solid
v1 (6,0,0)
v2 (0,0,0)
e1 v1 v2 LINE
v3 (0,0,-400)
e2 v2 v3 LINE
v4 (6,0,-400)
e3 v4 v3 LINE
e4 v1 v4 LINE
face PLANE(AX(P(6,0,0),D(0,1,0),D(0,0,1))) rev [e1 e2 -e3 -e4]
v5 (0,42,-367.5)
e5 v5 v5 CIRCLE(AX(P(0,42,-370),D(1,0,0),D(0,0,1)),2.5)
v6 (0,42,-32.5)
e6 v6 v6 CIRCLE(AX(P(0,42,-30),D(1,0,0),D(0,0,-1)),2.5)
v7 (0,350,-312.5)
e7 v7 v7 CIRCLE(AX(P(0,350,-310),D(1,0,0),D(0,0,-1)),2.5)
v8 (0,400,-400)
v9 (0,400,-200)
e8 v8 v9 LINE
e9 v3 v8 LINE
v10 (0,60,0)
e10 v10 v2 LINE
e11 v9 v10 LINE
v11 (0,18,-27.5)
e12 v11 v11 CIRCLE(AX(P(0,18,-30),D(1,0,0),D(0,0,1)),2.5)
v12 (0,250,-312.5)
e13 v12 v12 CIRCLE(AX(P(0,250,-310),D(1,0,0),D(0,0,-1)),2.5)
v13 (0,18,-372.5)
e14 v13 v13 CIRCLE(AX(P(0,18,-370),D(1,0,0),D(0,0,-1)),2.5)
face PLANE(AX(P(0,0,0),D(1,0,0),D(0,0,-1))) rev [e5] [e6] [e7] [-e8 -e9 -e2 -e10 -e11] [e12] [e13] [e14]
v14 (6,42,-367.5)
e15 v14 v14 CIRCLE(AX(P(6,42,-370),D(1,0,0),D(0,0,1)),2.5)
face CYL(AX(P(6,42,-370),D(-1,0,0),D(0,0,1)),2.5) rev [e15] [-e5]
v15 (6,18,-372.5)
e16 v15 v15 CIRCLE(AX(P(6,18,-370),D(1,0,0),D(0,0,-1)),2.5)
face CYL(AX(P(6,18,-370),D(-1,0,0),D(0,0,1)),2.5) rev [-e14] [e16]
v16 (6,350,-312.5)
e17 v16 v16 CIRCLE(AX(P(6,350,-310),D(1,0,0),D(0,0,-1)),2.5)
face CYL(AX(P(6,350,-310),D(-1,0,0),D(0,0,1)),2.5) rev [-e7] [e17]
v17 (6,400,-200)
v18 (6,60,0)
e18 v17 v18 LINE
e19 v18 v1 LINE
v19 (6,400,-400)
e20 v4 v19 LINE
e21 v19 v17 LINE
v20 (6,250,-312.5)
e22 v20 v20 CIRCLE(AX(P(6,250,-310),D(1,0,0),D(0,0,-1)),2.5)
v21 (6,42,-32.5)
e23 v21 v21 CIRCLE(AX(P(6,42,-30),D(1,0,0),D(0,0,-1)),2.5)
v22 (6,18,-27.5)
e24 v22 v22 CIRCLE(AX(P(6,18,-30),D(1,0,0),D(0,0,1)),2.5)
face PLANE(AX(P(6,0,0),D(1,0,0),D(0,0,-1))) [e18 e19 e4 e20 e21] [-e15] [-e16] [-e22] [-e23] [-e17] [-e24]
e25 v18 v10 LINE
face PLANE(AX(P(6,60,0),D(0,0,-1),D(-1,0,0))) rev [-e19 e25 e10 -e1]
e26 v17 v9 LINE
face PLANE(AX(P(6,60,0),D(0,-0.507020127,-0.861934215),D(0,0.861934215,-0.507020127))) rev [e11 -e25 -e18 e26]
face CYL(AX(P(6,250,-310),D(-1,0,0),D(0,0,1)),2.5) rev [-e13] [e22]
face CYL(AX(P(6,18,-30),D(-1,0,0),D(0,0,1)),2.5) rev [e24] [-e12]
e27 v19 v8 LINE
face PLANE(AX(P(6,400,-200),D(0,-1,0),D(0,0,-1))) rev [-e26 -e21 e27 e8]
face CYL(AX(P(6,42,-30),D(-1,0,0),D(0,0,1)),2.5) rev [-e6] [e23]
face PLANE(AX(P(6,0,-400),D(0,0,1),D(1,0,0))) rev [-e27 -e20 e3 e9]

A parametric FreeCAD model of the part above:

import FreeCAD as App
import Part
import Sketcher

V = App.Vector


def add_polygon(sketch, points):
    """Adds a closed chain of lines whose ends are joined by coincident constraints."""
    first, n = sketch.GeometryCount, len(points)
    for a, b in zip(points, points[1:] + points[:1]):
        sketch.addGeometry(Part.LineSegment(App.Vector(*a, 0), App.Vector(*b, 0)), False)
    for i in range(n):
        sketch.addConstraint(Sketcher.Constraint("Coincident", first + i, 2, first + (i + 1) % n, 1))

doc = App.newDocument("Part")
params = doc.addObject("Spreadsheet::Sheet", "Params")
for row, (alias, value) in enumerate([
    ("sketch1_diameter", "5 mm"),
    ("sketch1_width", "400 mm"),
    ("sketch1_width2", "60 mm"),
    ("sketch1_height", "200 mm"),
    ("pad1_length", "6 mm"),
], start=1):
    params.set(f"A{row}", alias)
    params.set(f"B{row}", "=" + value)
    params.setAlias(f"B{row}", alias)

body = doc.addObject("PartDesign::Body", "Body")

# Sketch on YZ plane
sketch1 = doc.addObject("Sketcher::SketchObject", "Sketch")
body.addObject(sketch1)
sketch1.AttachmentSupport = (doc.YZ_Plane, [""])
sketch1.MapMode = "FlatFace"
add_polygon(sketch1, [(0, 0), (0, -400), (400, -400), (400, -200), (60, 0)])  # lines 0-4
sketch1.addGeometry(Part.Circle(V(18, -30, 0), V(0, 0, 1), 2.5), False)  # 5
sketch1.addGeometry(Part.Circle(V(42, -30, 0), V(0, 0, 1), 2.5), False)  # 6
sketch1.addGeometry(Part.Circle(V(18, -370, 0), V(0, 0, 1), 2.5), False)  # 7
sketch1.addGeometry(Part.Circle(V(42, -370, 0), V(0, 0, 1), 2.5), False)  # 8
sketch1.addGeometry(Part.Circle(V(250, -310, 0), V(0, 0, 1), 2.5), False)  # 9
sketch1.addGeometry(Part.Circle(V(350, -310, 0), V(0, 0, 1), 2.5), False)  # 10
sketch1.addConstraint(Sketcher.Constraint("Vertical", 0))
sketch1.addConstraint(Sketcher.Constraint("Horizontal", 1))
sketch1.addConstraint(Sketcher.Constraint("Vertical", 2))
sketch1.addConstraint(Sketcher.Constraint("Horizontal", 4))
sketch1.addConstraint(Sketcher.Constraint("Coincident", 4, 2, -1, 1))
sketch1.addConstraint(Sketcher.Constraint("Equal", 5, 6))
sketch1.addConstraint(Sketcher.Constraint("Equal", 6, 7))
sketch1.addConstraint(Sketcher.Constraint("Equal", 7, 8))
sketch1.addConstraint(Sketcher.Constraint("Equal", 8, 9))
sketch1.addConstraint(Sketcher.Constraint("Equal", 9, 10))
sketch1.addConstraint(Sketcher.Constraint("Horizontal", 5, 3, 6, 3))
sketch1.addConstraint(Sketcher.Constraint("Horizontal", 7, 3, 8, 3))
sketch1.addConstraint(Sketcher.Constraint("Horizontal", 9, 3, 10, 3))
sketch1.addConstraint(Sketcher.Constraint("Vertical", 5, 3, 7, 3))
sketch1.addConstraint(Sketcher.Constraint("Vertical", 6, 3, 8, 3))
sketch1.addConstraint(Sketcher.Constraint("Equal", 1, 0))
sketch1.addConstraint(Sketcher.Constraint("Diameter", 5, 5.0))
sketch1.addConstraint(Sketcher.Constraint("DistanceX", 1, 1, 1, 2, 400.0))
sketch1.addConstraint(Sketcher.Constraint("DistanceX", 4, 2, 4, 1, 60.0))
sketch1.addConstraint(Sketcher.Constraint("DistanceY", 2, 1, 2, 2, 200.0))
sketch1.addConstraint(Sketcher.Constraint("DistanceX", -1, 1, 5, 3, 18.0))
sketch1.addConstraint(Sketcher.Constraint("DistanceY", 5, 3, -1, 1, 30.0))
sketch1.addConstraint(Sketcher.Constraint("DistanceX", -1, 1, 6, 3, 42.0))
sketch1.addConstraint(Sketcher.Constraint("DistanceY", 7, 3, -1, 1, 370.0))
sketch1.addConstraint(Sketcher.Constraint("DistanceX", -1, 1, 9, 3, 250.0))
sketch1.addConstraint(Sketcher.Constraint("DistanceY", 9, 3, -1, 1, 310.0))
sketch1.addConstraint(Sketcher.Constraint("DistanceX", -1, 1, 10, 3, 350.0))
sketch1.setExpression("Constraints[21]", "Params.sketch1_diameter")
sketch1.setExpression("Constraints[22]", "Params.sketch1_width")
sketch1.setExpression("Constraints[23]", "Params.sketch1_width2")
sketch1.setExpression("Constraints[24]", "Params.sketch1_height")
pad1 = doc.addObject("PartDesign::Pad", "Pad")
body.addObject(pad1)
pad1.Profile = sketch1
pad1.setExpression("Length", "Params.pad1_length")

doc.recompute()
